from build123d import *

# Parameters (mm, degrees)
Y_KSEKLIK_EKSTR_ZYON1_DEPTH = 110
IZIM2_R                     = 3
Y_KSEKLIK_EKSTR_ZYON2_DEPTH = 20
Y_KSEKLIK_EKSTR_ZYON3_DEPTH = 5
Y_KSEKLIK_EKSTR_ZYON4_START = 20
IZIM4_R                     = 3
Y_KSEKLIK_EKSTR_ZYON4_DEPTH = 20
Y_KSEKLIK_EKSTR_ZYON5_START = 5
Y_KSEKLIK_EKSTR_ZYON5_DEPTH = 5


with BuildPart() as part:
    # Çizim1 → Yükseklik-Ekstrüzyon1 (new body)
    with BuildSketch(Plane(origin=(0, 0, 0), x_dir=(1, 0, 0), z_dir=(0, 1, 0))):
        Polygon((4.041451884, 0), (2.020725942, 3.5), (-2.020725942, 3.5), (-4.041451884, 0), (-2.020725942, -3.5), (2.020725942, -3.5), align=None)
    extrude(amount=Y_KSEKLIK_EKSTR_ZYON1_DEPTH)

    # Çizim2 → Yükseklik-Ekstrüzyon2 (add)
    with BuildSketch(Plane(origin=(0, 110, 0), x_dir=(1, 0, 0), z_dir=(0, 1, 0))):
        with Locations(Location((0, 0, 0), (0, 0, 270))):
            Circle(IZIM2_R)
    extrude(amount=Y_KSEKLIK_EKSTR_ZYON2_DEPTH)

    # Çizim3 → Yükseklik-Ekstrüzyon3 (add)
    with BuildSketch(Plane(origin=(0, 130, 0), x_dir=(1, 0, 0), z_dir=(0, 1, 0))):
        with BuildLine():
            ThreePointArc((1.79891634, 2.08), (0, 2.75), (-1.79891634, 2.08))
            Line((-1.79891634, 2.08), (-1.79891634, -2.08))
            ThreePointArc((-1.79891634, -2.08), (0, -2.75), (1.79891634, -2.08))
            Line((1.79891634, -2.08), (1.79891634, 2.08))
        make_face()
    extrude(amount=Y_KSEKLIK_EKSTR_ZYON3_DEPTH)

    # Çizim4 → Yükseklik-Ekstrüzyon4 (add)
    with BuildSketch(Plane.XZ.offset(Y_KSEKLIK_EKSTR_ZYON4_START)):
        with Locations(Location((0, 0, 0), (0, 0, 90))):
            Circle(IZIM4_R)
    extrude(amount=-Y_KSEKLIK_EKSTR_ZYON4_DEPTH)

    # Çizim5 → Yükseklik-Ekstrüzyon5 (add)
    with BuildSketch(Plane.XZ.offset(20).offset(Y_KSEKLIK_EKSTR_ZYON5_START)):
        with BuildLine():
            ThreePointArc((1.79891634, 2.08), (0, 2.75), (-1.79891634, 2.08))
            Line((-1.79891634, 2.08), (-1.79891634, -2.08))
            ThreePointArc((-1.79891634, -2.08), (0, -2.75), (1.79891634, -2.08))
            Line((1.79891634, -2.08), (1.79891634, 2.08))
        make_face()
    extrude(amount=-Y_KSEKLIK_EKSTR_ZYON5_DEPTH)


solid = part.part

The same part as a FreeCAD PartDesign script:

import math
import FreeCAD as App
import Part
import Sketcher
from FreeCAD import Vector
Q = App.Units.Quantity


def add_polygon(sketch, points):
    """Adds a closed chain of lines whose ends are joined by coincident constraints."""
    first, n = sketch.GeometryCount, len(points)
    for a, b in zip(points, points[1:] + points[:1]):
        sketch.addGeometry(Part.LineSegment(App.Vector(*a, 0), App.Vector(*b, 0)), False)
    for i in range(n):
        sketch.addConstraint(Sketcher.Constraint("Coincident", first + i, 2, first + (i + 1) % n, 1))

doc = App.newDocument("Part")
body = doc.addObject("PartDesign::Body", "Body")

sketch1 = doc.addObject("Sketcher::SketchObject", "Sketch")
body.addObject(sketch1)
sketch1.AttachmentSupport = (doc.XZ_Plane, [""])
sketch1.MapMode = "FlatFace"
add_polygon(sketch1, [(4, 0), (2, -3.5), (-2, -3.5), (-4, 0), (-2, 3.5), (2, 3.5)])
sketch1.addConstraint([
    Sketcher.Constraint("Horizontal", 1),
    Sketcher.Constraint("Horizontal", 4),
    Sketcher.Constraint("Symmetric", 0, 2, 3, 2, -1, 1),
    Sketcher.Constraint("Symmetric", 2, 2, 5, 2, -1, 1),
    Sketcher.Constraint("PointOnObject", 2, 2, -1),
    Sketcher.Constraint("Parallel", 2, 5),
    Sketcher.Constraint("Vertical", 1, 2, 3, 2),
    Sketcher.Constraint("Angle", 0, Q("-120 deg")),
    Sketcher.Constraint("DistanceY", 1, 2, 3, 2, Q("7 mm")),
    Sketcher.Constraint("DistanceX", 1, 2, 1, 1, Q("4.041452 mm")),
])
pad1 = doc.addObject("PartDesign::Pad", "Pad")
body.addObject(pad1)
pad1.Profile = sketch1
pad1.Length = 110
pad1.Reversed = True

sketch2 = doc.addObject("Sketcher::SketchObject", "Sketch001")
body.addObject(sketch2)
sketch2.AttachmentSupport = (doc.XZ_Plane, [""])
sketch2.MapMode = "FlatFace"
sketch2.AttachmentOffset = App.Placement(Vector(0, 0, -110), App.Rotation())
sketch2.addGeometry(Part.Circle(Vector(0, 0, 0), Vector(0, 0, 1), 3), False)
sketch2.addConstraint([
    Sketcher.Constraint("Coincident", 0, 3, -1, 1),
    Sketcher.Constraint("Diameter", 0, Q("6 mm")),
])
pad2 = doc.addObject("PartDesign::Pad", "Pad001")
body.addObject(pad2)
pad2.Profile = sketch2
pad2.Length = 20
pad2.Reversed = True

sketch3 = doc.addObject("Sketcher::SketchObject", "Sketch002")
body.addObject(sketch3)
sketch3.AttachmentSupport = (doc.XZ_Plane, [""])
sketch3.MapMode = "FlatFace"
sketch3.AttachmentOffset = App.Placement(Vector(0, 0, -130), App.Rotation())
sketch3.addGeometry([
    Part.ArcOfCircle(Part.Circle(Vector(0, 0, 0), Vector(0, 0, 1), 2.7), math.radians(-131), math.radians(-49)),
    Part.LineSegment(Vector(-1.8, -2.1, 0), Vector(-1.8, 2.1, 0)),
    Part.ArcOfCircle(Part.Circle(Vector(0, 0, 0), Vector(0, 0, 1), 2.7), math.radians(49), math.radians(131)),
    Part.LineSegment(Vector(1.8, 2.1, 0), Vector(1.8, -2.1, 0)),
], False)
sketch3.addConstraint([
    Sketcher.Constraint("Coincident", 0, 1, 1, 1),
    Sketcher.Constraint("Coincident", 1, 2, 2, 2),
    Sketcher.Constraint("Coincident", 2, 1, 3, 1),
    Sketcher.Constraint("Coincident", 3, 2, 0, 2),
    Sketcher.Constraint("Vertical", 1),
    Sketcher.Constraint("Vertical", 3),
    Sketcher.Constraint("Coincident", 0, 3, -1, 1),
    Sketcher.Constraint("Coincident", 2, 3, -1, 1),
    Sketcher.Constraint("Equal", 0, 2),
    Sketcher.Constraint("Horizontal", 1, 2, 2, 1),
    Sketcher.Constraint("Radius", 0, Q("2.75 mm")),
    Sketcher.Constraint("DistanceY", 1, 1, 1, 2, Q("4.16 mm")),
])
pad3 = doc.addObject("PartDesign::Pad", "Pad002")
body.addObject(pad3)
pad3.Profile = sketch3
pad3.Length = 5
pad3.Reversed = True

sketch4 = doc.addObject("Sketcher::SketchObject", "Sketch003")
body.addObject(sketch4)
sketch4.AttachmentSupport = (doc.XZ_Plane, [""])
sketch4.MapMode = "FlatFace"
sketch4.AttachmentOffset = App.Placement(Vector(0, 0, 20), App.Rotation())
sketch4.addGeometry(Part.Circle(Vector(0, 0, 0), Vector(0, 0, 1), 3), False)
sketch4.addConstraint([
    Sketcher.Constraint("Coincident", 0, 3, -1, 1),
    Sketcher.Constraint("Diameter", 0, Q("6 mm")),
])
pad4 = doc.addObject("PartDesign::Pad", "Pad003")
body.addObject(pad4)
pad4.Profile = sketch4
pad4.Length = 20
pad4.Reversed = True

sketch5 = doc.addObject("Sketcher::SketchObject", "Sketch004")
body.addObject(sketch5)
sketch5.AttachmentSupport = (doc.XZ_Plane, [""])
sketch5.MapMode = "FlatFace"
sketch5.AttachmentOffset = App.Placement(Vector(0, 0, 25), App.Rotation())
sketch5.addGeometry([
    Part.ArcOfCircle(Part.Circle(Vector(0, 0, 0), Vector(0, 0, 1), 2.7), math.radians(49), math.radians(131)),
    Part.LineSegment(Vector(-1.8, 2.1, 0), Vector(-1.8, -2.1, 0)),
    Part.ArcOfCircle(Part.Circle(Vector(0, 0, 0), Vector(0, 0, 1), 2.7), math.radians(-131), math.radians(-49)),
    Part.LineSegment(Vector(1.8, -2.1, 0), Vector(1.8, 2.1, 0)),
], False)
sketch5.addConstraint([
    Sketcher.Constraint("Coincident", 0, 2, 1, 1),
    Sketcher.Constraint("Coincident", 1, 2, 2, 1),
    Sketcher.Constraint("Coincident", 2, 2, 3, 1),
    Sketcher.Constraint("Coincident", 3, 2, 0, 1),
    Sketcher.Constraint("Vertical", 1),
    Sketcher.Constraint("Vertical", 3),
    Sketcher.Constraint("Coincident", 0, 3, -1, 1),
    Sketcher.Constraint("Coincident", 2, 3, -1, 1),
    Sketcher.Constraint("Equal", 0, 2),
    Sketcher.Constraint("Horizontal", 1, 2, 2, 2),
    Sketcher.Constraint("Radius", 0, Q("2.75 mm")),
    Sketcher.Constraint("DistanceY", 1, 2, 1, 1, Q("4.16 mm")),
])
pad5 = doc.addObject("PartDesign::Pad", "Pad004")
body.addObject(pad5)
pad5.Profile = sketch5
pad5.Length = 5
pad5.Reversed = True

doc.recompute()
